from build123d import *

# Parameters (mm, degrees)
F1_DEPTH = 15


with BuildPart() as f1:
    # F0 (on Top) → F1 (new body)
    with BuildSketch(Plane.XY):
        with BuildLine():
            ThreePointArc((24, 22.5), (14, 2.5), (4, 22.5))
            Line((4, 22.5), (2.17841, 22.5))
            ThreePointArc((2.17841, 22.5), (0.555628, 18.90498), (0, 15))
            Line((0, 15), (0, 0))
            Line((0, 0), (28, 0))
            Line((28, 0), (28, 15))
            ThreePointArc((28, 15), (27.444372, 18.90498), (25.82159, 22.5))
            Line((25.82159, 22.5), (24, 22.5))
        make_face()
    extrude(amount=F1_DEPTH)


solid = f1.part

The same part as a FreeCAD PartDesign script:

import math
import FreeCAD as App
import Part
import Sketcher

V = App.Vector

doc = App.newDocument("Part")
body = doc.addObject("PartDesign::Body", "Body")

# Sketch on XY plane
sketch1 = body.newObject("Sketcher::SketchObject", "Sketch")
sketch1.AttachmentSupport = (doc.getObject("XY_Plane"), [""])
sketch1.MapMode = "FlatFace"
sketch1.addGeometry(Part.ArcOfCircle(Part.Circle(V(14, 15, 0), V(0, 0, 1), 12.5), math.radians(143), math.radians(397)), False)
sketch1.addGeometry(Part.LineSegment(V(4, 22.5, 0), V(2.2, 22.5, 0)), False)
sketch1.addGeometry(Part.ArcOfCircle(Part.Circle(V(14, 15, 0), V(0, 0, 1), 14), math.radians(148), math.radians(180)), False)
sketch1.addGeometry(Part.LineSegment(V(0, 15, 0), V(0, 0, 0)), False)
sketch1.addGeometry(Part.LineSegment(V(0, 0, 0), V(28, 0, 0)), False)
sketch1.addGeometry(Part.LineSegment(V(28, 0, 0), V(28, 15, 0)), False)
sketch1.addGeometry(Part.ArcOfCircle(Part.Circle(V(14, 15, 0), V(0, 0, 1), 14), math.radians(0), math.radians(32)), False)
sketch1.addGeometry(Part.LineSegment(V(25.8, 22.5, 0), V(24, 22.5, 0)), False)
sketch1.addConstraint(Sketcher.Constraint("Coincident", 0, 1, 1, 1))
sketch1.addConstraint(Sketcher.Constraint("Coincident", 1, 2, 2, 1))
sketch1.addConstraint(Sketcher.Constraint("Tangent", 2, 2, 3, 1))
sketch1.addConstraint(Sketcher.Constraint("Coincident", 3, 2, 4, 1))
sketch1.addConstraint(Sketcher.Constraint("Coincident", 4, 2, 5, 1))
sketch1.addConstraint(Sketcher.Constraint("Tangent", 5, 2, 6, 1))
sketch1.addConstraint(Sketcher.Constraint("Coincident", 6, 2, 7, 1))
sketch1.addConstraint(Sketcher.Constraint("Coincident", 7, 2, 0, 2))
sketch1.addConstraint(Sketcher.Constraint("Horizontal", 1))
sketch1.addConstraint(Sketcher.Constraint("Vertical", 3))
sketch1.addConstraint(Sketcher.Constraint("Horizontal", 4))
sketch1.addConstraint(Sketcher.Constraint("Vertical", 5))
sketch1.addConstraint(Sketcher.Constraint("Horizontal", 7))
sketch1.addConstraint(Sketcher.Constraint("Coincident", 3, 2, -1, 1))
sketch1.addConstraint(Sketcher.Constraint("Equal", 2, 6))
sketch1.addConstraint(Sketcher.Constraint("Horizontal", 2, 3, 6, 3))
sketch1.addConstraint(Sketcher.Constraint("Horizontal", 0, 3, 2, 2))
sketch1.addConstraint(Sketcher.Constraint("Horizontal", 1, 2, 6, 2))
sketch1.addConstraint(Sketcher.Constraint("Equal", 1, 7))
sketch1.addConstraint(Sketcher.Constraint("Radius", 0, 12.5))
sketch1.addConstraint(Sketcher.Constraint("DistanceX", 4, 1, 4, 2, 28.0))
sketch1.addConstraint(Sketcher.Constraint("DistanceY", 3, 2, 3, 1, 15.0))
sketch1.addConstraint(Sketcher.Constraint("DistanceX", -1, 1, 0, 1, 4.0))
sketch1.addConstraint(Sketcher.Constraint("Radius", 2, 13.999989))
pad1 = body.newObject("PartDesign::Pad", "Pad")
pad1.Profile = sketch1
pad1.Length = 15

doc.recompute()
